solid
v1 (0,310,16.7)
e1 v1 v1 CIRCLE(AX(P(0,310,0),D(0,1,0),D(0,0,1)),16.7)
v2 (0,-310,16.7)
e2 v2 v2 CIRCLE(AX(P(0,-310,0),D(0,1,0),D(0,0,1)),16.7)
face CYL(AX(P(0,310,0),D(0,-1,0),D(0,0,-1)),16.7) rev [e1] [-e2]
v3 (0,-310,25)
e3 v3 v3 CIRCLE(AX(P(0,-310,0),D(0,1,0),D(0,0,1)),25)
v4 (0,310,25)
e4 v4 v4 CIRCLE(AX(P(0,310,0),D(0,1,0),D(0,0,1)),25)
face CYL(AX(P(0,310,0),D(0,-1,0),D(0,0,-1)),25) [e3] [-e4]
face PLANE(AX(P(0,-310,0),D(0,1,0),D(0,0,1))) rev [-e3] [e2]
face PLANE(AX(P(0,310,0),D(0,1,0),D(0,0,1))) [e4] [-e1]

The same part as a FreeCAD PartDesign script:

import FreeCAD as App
import Part
import Sketcher

doc = App.newDocument("Part")
body = doc.addObject("PartDesign::Body", "Body")

sketch1 = body.newObject("Sketcher::SketchObject", "Sketch")
sketch1.AttachmentSupport = (doc.getObject("XZ_Plane"), [""])
sketch1.MapMode = "FlatFace"
sketch1.addGeometry([
    Part.Circle(App.Vector(0, 0, 0), App.Vector(0, 0, 1), 25),
    Part.Circle(App.Vector(0, 0, 0), App.Vector(0, 0, 1), 17),
], False)
sketch1.addConstraint([
    Sketcher.Constraint("Coincident", 0, 3, -1, 1),
    Sketcher.Constraint("Coincident", 1, 3, -1, 1),
    Sketcher.Constraint("Diameter", 0, 50.0),
    Sketcher.Constraint("Diameter", 1, 33.4),
])
pad1 = body.newObject("PartDesign::Pad", "Pad")
pad1.Profile = sketch1
pad1.Length = 620
pad1.Midplane = True

doc.recompute()
